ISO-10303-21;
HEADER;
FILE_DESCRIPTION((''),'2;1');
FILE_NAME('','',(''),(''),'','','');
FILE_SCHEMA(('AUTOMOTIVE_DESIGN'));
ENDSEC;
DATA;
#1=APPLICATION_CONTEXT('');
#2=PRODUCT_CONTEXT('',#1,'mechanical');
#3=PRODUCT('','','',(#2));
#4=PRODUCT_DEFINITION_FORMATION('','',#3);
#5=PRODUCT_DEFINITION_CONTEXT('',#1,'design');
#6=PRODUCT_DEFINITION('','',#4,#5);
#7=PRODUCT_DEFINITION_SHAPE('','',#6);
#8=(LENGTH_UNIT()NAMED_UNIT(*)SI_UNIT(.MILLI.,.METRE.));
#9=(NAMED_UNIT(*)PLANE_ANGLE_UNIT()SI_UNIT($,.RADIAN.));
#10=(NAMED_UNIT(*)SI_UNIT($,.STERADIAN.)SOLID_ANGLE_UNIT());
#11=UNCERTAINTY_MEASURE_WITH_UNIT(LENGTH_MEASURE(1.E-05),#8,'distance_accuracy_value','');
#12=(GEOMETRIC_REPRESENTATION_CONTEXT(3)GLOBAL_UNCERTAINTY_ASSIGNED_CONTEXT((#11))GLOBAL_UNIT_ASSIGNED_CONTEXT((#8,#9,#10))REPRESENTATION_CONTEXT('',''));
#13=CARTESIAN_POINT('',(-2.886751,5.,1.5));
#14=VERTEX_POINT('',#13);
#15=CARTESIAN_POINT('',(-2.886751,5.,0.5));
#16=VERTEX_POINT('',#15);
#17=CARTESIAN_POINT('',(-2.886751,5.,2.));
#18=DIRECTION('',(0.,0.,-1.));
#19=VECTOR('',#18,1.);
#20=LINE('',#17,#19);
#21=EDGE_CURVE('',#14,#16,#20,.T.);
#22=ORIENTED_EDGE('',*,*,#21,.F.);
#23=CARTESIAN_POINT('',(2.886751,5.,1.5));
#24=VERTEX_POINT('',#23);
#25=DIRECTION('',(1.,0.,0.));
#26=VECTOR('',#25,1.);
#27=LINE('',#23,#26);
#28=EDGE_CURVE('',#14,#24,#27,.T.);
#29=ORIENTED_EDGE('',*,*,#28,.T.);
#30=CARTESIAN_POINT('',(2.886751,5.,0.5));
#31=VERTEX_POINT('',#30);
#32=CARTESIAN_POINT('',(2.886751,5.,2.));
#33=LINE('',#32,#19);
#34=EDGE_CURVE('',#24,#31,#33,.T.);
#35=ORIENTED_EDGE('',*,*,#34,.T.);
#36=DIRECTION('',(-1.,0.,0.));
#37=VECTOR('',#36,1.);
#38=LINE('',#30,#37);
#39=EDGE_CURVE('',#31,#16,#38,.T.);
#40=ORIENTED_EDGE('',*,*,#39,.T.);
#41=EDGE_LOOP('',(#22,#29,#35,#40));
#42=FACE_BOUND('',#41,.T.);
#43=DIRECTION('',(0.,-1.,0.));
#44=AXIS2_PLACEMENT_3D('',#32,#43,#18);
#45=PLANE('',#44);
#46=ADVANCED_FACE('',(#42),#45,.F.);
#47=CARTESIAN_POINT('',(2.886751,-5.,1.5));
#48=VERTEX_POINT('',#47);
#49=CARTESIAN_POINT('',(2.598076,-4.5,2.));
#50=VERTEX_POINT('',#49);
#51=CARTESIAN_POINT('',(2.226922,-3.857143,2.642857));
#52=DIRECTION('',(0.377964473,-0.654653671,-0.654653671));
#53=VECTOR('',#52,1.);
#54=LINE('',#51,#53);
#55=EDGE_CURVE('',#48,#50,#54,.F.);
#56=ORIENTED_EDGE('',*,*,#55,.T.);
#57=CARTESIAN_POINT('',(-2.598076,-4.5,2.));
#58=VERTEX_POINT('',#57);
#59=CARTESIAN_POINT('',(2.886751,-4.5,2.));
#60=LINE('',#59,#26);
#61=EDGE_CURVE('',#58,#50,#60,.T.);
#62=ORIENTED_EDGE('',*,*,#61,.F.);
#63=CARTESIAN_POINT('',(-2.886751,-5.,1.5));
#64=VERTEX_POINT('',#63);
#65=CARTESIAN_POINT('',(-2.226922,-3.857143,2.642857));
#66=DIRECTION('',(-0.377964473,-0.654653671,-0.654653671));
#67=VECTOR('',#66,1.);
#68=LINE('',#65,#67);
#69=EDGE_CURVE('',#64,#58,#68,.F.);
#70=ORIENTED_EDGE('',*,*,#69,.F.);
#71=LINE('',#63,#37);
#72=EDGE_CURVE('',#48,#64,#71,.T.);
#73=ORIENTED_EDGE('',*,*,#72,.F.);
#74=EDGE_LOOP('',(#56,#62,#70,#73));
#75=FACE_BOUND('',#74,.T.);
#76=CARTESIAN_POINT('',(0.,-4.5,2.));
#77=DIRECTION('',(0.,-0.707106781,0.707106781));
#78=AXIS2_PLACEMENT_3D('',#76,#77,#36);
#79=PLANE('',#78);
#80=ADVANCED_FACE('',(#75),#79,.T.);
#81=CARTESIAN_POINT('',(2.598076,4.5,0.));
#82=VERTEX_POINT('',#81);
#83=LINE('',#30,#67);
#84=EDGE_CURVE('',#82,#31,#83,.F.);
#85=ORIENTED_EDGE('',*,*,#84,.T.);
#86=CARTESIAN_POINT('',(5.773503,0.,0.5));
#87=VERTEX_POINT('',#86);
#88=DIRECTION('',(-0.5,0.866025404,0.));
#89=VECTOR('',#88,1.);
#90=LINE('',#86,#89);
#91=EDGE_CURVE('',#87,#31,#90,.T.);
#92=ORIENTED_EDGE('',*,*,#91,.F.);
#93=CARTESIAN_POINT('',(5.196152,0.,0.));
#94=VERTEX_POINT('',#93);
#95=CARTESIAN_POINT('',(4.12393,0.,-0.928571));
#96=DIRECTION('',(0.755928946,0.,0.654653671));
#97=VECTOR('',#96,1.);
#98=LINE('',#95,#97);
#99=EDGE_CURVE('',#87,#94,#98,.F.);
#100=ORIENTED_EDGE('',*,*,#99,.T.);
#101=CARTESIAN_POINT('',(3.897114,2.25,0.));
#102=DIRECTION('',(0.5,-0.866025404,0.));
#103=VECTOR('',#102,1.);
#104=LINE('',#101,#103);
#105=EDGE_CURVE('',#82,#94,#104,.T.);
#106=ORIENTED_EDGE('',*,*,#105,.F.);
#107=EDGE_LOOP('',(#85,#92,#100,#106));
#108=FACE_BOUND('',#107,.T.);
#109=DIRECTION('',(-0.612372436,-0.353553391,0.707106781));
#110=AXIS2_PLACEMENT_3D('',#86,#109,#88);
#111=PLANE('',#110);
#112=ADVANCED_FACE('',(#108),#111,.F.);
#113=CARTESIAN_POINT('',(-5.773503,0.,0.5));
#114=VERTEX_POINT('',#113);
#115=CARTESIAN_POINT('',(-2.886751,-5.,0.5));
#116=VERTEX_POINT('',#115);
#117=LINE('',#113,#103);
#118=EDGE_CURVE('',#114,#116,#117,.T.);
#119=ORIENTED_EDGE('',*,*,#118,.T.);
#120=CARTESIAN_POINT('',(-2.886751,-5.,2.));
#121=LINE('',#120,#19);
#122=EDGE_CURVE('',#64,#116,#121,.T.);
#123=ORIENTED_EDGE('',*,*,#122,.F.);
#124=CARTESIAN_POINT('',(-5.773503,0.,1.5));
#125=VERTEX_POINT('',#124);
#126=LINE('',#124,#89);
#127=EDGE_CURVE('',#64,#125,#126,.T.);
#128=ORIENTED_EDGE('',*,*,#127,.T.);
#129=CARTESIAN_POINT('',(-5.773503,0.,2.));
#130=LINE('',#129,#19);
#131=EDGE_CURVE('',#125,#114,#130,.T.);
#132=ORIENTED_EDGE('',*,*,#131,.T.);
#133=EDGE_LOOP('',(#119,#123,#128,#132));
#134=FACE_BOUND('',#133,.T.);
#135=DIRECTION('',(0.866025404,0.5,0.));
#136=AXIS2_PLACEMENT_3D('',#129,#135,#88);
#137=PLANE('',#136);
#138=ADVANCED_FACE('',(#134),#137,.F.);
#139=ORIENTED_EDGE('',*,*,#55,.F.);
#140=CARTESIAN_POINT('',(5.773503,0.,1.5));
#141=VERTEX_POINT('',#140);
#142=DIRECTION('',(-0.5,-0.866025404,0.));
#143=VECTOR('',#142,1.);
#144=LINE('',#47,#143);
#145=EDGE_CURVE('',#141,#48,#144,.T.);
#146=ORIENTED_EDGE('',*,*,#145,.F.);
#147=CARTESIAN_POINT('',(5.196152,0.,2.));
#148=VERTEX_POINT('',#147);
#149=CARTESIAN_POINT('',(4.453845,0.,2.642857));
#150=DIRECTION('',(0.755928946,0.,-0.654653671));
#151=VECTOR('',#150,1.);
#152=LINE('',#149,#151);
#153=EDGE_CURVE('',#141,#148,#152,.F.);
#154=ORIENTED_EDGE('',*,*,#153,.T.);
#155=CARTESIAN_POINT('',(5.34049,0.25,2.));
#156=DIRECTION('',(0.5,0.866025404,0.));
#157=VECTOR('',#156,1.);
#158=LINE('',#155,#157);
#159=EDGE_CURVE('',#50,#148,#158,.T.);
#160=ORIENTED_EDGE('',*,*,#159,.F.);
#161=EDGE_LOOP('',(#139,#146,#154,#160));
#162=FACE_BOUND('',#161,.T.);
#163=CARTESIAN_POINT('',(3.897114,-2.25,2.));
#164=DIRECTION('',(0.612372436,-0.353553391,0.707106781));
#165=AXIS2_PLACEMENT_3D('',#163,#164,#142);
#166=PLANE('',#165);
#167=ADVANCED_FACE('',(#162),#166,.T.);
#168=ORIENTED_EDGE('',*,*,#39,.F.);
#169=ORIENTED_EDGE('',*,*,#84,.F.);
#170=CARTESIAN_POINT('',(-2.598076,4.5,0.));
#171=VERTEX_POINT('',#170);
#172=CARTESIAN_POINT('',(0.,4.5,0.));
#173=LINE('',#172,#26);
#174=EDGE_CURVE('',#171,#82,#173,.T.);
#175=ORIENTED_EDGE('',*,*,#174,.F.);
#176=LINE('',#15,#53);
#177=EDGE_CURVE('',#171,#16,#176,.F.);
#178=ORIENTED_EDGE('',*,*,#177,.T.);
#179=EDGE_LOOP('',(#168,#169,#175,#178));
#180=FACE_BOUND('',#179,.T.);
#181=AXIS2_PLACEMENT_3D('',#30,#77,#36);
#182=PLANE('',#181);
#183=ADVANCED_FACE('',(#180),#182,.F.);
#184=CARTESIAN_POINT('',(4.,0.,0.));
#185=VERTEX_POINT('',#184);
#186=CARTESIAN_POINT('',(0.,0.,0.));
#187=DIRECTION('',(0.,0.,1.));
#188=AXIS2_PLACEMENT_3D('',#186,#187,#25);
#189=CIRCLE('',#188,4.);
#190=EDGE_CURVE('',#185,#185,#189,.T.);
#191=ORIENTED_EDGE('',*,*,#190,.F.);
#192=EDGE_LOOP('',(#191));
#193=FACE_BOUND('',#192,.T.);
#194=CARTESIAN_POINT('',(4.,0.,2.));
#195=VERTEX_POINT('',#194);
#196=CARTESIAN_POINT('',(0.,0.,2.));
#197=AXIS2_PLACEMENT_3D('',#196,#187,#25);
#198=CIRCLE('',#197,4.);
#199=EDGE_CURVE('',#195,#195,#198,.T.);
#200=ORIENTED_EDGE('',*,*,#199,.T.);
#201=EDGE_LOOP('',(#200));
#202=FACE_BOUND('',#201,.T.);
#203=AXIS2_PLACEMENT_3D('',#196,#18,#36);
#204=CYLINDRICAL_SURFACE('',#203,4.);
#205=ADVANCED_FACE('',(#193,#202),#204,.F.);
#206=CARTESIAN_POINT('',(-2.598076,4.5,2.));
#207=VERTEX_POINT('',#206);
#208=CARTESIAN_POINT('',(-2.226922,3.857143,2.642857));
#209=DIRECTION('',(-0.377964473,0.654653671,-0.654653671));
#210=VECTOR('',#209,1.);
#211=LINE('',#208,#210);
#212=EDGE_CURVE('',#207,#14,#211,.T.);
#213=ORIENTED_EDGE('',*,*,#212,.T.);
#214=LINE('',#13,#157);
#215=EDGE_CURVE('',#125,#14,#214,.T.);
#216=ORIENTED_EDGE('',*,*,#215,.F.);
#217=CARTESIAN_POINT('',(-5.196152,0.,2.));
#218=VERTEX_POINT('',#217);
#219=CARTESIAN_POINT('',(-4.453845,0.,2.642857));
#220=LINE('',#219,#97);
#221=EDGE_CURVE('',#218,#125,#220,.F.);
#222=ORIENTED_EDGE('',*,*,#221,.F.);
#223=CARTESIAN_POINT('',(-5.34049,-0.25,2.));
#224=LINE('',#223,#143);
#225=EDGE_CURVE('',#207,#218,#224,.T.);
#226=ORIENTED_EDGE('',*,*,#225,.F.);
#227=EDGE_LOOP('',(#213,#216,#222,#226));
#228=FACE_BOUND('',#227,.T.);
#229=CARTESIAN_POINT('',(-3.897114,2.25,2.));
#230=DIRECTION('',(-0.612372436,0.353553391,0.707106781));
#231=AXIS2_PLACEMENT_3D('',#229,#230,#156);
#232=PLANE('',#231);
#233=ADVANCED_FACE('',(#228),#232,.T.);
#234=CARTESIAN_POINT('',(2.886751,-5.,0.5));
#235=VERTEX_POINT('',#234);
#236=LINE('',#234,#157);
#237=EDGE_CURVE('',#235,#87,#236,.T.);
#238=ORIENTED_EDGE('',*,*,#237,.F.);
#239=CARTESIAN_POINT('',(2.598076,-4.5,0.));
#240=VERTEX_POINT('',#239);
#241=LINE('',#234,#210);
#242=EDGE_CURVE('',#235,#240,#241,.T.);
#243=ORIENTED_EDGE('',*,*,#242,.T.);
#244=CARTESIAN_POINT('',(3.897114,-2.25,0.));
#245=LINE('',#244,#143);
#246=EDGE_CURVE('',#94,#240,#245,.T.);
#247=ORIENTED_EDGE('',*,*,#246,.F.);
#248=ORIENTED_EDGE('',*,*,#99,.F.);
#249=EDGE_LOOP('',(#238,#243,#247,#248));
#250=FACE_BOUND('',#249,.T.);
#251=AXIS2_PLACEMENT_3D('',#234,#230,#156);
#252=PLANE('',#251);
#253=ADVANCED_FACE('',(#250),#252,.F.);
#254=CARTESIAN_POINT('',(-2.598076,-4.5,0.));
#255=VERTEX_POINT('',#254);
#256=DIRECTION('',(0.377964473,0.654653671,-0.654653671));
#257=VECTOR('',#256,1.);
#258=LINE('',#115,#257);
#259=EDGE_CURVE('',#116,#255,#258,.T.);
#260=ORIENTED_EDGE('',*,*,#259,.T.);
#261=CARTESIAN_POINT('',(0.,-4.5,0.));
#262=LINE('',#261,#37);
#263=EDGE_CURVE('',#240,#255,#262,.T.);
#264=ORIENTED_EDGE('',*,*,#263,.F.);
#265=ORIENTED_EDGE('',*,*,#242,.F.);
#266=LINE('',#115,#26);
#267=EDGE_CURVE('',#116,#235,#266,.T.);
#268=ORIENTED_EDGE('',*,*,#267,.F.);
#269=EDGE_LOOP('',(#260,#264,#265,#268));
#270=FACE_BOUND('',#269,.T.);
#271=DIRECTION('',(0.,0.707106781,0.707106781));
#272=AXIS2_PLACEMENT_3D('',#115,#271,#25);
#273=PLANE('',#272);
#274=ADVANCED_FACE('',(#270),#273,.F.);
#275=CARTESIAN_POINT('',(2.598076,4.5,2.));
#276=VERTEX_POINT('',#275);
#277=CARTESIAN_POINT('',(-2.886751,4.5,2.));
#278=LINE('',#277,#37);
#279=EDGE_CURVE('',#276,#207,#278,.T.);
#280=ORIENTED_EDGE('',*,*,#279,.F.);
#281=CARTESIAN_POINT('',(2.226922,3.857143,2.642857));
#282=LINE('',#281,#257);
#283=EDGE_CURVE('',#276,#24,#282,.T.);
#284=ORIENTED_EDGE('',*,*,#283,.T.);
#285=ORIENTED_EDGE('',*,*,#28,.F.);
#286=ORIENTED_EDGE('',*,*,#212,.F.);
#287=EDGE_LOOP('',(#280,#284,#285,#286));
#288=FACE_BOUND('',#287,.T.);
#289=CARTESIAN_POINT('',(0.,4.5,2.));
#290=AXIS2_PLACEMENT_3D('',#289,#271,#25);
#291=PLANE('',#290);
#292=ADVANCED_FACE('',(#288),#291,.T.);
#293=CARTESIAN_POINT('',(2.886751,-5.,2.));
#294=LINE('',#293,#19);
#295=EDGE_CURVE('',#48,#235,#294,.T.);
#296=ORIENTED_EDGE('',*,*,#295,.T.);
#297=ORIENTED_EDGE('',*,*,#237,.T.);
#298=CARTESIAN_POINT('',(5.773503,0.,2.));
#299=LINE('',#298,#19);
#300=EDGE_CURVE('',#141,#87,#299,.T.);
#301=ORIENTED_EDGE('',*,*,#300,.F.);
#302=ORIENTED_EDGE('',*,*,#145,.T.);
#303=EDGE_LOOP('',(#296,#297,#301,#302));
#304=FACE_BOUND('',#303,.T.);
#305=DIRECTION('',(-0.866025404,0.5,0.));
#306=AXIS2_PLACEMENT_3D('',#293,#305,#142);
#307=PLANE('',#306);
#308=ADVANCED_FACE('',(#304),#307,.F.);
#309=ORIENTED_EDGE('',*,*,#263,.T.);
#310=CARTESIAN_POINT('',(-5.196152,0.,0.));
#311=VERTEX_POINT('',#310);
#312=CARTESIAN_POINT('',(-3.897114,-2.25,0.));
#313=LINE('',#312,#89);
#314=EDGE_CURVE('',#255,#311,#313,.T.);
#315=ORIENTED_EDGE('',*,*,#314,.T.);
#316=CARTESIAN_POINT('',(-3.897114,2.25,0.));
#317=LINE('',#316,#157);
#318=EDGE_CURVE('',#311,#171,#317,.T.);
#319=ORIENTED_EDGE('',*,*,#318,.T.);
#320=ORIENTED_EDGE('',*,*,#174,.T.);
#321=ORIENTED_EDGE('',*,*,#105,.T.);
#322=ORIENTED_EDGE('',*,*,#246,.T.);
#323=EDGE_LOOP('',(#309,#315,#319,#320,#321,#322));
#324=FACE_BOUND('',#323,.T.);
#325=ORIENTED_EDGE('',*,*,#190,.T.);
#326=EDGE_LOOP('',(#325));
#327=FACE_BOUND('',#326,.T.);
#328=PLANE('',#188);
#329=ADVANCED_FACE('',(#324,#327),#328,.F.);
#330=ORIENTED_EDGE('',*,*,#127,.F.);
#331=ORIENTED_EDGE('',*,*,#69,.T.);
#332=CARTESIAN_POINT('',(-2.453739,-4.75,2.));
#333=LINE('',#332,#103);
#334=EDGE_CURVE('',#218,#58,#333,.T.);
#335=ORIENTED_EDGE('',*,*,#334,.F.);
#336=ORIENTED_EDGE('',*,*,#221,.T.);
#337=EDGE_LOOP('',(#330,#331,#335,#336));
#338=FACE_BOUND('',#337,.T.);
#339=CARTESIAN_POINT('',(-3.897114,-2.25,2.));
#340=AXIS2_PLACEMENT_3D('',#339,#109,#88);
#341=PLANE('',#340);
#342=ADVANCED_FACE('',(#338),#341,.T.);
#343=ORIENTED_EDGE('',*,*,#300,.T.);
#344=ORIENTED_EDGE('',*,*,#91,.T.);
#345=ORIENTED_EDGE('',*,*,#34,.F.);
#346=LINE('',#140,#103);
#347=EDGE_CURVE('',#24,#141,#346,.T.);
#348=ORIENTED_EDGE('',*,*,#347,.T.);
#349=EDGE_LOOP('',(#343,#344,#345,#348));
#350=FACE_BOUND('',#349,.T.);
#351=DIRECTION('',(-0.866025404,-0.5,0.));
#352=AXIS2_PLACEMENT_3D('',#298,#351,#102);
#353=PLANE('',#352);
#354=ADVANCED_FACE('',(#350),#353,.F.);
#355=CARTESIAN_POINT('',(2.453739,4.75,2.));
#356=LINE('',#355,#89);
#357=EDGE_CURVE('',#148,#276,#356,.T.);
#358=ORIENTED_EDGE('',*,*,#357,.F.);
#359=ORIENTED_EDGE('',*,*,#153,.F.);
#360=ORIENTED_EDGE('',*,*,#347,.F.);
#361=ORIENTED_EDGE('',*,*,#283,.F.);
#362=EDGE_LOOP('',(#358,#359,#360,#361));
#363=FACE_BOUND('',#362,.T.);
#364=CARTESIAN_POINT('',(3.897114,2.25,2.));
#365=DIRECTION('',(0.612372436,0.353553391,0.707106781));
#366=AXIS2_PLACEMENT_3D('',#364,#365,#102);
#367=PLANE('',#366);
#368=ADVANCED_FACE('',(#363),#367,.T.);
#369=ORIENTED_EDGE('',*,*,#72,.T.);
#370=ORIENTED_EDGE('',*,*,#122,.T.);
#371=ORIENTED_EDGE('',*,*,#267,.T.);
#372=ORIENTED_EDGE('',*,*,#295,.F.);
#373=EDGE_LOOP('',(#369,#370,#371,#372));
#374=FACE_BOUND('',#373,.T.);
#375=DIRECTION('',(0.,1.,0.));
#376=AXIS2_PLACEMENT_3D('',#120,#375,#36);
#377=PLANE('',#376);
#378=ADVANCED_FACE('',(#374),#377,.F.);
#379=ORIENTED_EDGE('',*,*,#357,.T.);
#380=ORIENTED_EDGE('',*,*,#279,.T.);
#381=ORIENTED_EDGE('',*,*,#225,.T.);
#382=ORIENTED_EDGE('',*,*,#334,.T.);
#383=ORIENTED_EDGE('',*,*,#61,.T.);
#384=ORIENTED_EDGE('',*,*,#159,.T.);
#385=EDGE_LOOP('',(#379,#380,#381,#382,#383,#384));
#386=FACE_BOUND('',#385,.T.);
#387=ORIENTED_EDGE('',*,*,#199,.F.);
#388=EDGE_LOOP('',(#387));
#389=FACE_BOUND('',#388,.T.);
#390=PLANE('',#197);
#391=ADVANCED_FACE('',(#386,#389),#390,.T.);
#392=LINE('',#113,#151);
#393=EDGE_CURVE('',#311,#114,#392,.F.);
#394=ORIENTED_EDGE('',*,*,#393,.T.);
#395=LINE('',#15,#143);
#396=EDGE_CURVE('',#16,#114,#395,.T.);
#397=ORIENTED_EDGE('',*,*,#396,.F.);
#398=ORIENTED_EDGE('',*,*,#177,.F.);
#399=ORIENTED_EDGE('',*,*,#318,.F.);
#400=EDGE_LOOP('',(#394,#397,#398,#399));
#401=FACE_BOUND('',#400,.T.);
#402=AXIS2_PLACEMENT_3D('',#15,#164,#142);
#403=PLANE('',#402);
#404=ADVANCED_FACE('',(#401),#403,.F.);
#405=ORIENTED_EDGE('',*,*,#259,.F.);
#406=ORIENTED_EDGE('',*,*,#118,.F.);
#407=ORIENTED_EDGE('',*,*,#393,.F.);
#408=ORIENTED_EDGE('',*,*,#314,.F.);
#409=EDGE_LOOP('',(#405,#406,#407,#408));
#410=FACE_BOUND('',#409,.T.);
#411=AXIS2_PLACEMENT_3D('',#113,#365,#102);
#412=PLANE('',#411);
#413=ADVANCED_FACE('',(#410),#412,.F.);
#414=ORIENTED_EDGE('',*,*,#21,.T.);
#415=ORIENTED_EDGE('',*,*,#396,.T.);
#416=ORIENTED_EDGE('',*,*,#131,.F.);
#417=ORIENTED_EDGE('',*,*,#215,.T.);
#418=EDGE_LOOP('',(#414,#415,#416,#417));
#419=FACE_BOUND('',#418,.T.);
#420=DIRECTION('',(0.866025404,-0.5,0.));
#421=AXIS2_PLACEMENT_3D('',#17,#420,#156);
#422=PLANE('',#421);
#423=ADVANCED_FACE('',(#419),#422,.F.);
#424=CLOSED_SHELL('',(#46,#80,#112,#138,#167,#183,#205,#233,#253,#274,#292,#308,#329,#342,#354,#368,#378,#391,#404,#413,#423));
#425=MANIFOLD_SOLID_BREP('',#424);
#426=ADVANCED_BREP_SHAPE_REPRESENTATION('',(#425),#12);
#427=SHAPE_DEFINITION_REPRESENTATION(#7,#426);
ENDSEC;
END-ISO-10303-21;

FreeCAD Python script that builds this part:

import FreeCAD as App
import Part
import Sketcher
Q = App.Units.Quantity


def edges_at(feature, points):
    """Names of the edges that pass closest to the given points."""
    edges = feature.Shape.Edges
    near = lambda p: min(range(len(edges)), key=lambda i: edges[i].distToShape(Part.Vertex(*p))[0])
    return sorted({f"Edge{near(p) + 1}" for p in points})

doc = App.newDocument("Part")
body = doc.addObject("PartDesign::Body", "Body")

# Sketch on XY plane
sketch1 = body.newObject("Sketcher::SketchObject", "Sketch")
sketch1.AttachmentSupport = (doc.getObject("XY_Plane"), [""])
sketch1.MapMode = "FlatFace"
sketch1.addGeometry(Part.LineSegment(App.Vector(2.9, 5, 0), App.Vector(-2.9, 5, 0)), False)
sketch1.addGeometry(Part.LineSegment(App.Vector(-2.9, 5, 0), App.Vector(-5.8, 0, 0)), False)
sketch1.addGeometry(Part.LineSegment(App.Vector(-5.8, 0, 0), App.Vector(-2.9, -5, 0)), False)
sketch1.addGeometry(Part.LineSegment(App.Vector(-2.9, -5, 0), App.Vector(2.9, -5, 0)), False)
sketch1.addGeometry(Part.LineSegment(App.Vector(2.9, -5, 0), App.Vector(5.8, 0, 0)), False)
sketch1.addGeometry(Part.LineSegment(App.Vector(5.8, 0, 0), App.Vector(2.9, 5, 0)), False)
sketch1.addGeometry(Part.Circle(App.Vector(0, 0, 0), App.Vector(0, 0, 1), 4), False)
sketch1.addConstraint(Sketcher.Constraint("Coincident", 0, 2, 1, 1))
sketch1.addConstraint(Sketcher.Constraint("Coincident", 1, 2, 2, 1))
sketch1.addConstraint(Sketcher.Constraint("Coincident", 2, 2, 3, 1))
sketch1.addConstraint(Sketcher.Constraint("Coincident", 3, 2, 4, 1))
sketch1.addConstraint(Sketcher.Constraint("Coincident", 4, 2, 5, 1))
sketch1.addConstraint(Sketcher.Constraint("Coincident", 5, 2, 0, 1))
sketch1.addConstraint(Sketcher.Constraint("Horizontal", 0))
sketch1.addConstraint(Sketcher.Constraint("Horizontal", 3))
sketch1.addConstraint(Sketcher.Constraint("Coincident", 6, 3, -1, 1))
sketch1.addConstraint(Sketcher.Constraint("Symmetric", 0, 2, 3, 2, -1, 1))
sketch1.addConstraint(Sketcher.Constraint("Symmetric", 1, 2, 4, 2, -1, 1))
sketch1.addConstraint(Sketcher.Constraint("PointOnObject", 1, 2, -1))
sketch1.addConstraint(Sketcher.Constraint("Parallel", 2, 5))
sketch1.addConstraint(Sketcher.Constraint("Vertical", 0, 2, 2, 2))
sketch1.addConstraint(Sketcher.Constraint("Diameter", 6, 8.0))
sketch1.addConstraint(Sketcher.Constraint("Angle", 1, Q("-120 deg")))
sketch1.addConstraint(Sketcher.Constraint("DistanceY", -1, 1, 0, 2, 5.0))
sketch1.addConstraint(Sketcher.Constraint("DistanceX", 0, 2, 0, 1, 5.773503))
pad1 = body.newObject("PartDesign::Pad", "Pad")
pad1.Profile = sketch1
pad1.Length = 2
doc.recompute()

chamfer = body.newObject("PartDesign::Chamfer", "Chamfer")
chamfer.Base = (pad1, edges_at(pad1, [
    (-4.33, 2.5, 2),
    (-4.33, -2.5, 2),
    (0, -5, 2),
    (4.33, -2.5, 2),
    (4.33, 2.5, 2),
    (4.33, -2.5, 0),
    (0, -5, 0),
    (-4.33, -2.5, 0),
    (-4.33, 2.5, 0),
    (0, 5, 0),
    (4.33, 2.5, 0),
    (0, 5, 2),
]))
chamfer.Size = 0.5

doc.recompute()
